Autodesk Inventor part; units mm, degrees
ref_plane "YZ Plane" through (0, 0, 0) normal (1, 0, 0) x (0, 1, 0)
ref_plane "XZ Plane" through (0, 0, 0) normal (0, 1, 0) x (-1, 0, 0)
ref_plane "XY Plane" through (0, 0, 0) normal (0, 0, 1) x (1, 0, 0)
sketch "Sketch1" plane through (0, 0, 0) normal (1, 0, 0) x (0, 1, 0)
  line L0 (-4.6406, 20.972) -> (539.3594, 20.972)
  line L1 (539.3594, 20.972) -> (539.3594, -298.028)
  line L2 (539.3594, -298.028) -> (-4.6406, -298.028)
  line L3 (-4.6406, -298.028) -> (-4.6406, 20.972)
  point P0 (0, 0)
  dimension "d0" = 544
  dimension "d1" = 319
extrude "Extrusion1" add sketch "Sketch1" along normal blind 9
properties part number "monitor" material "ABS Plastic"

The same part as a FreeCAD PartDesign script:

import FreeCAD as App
import Part
import Sketcher
Q = App.Units.Quantity

doc = App.newDocument("Part")
body = doc.addObject("PartDesign::Body", "Body")

# Sketch on YZ plane
sketch1 = body.newObject("Sketcher::SketchObject", "Sketch")
sketch1.AttachmentSupport = (doc.getObject("YZ_Plane"), [""])
sketch1.MapMode = "FlatFace"
sketch1.addGeometry(Part.LineSegment(App.Vector(539, 21, 0), App.Vector(-5, 21, 0)), False)
sketch1.addGeometry(Part.LineSegment(App.Vector(-5, 21, 0), App.Vector(-5, -298, 0)), False)
sketch1.addGeometry(Part.LineSegment(App.Vector(-5, -298, 0), App.Vector(539, -298, 0)), False)
sketch1.addGeometry(Part.LineSegment(App.Vector(539, -298, 0), App.Vector(539, 21, 0)), False)
sketch1.addConstraint(Sketcher.Constraint("Coincident", 0, 2, 1, 1))
sketch1.addConstraint(Sketcher.Constraint("Coincident", 1, 2, 2, 1))
sketch1.addConstraint(Sketcher.Constraint("Coincident", 2, 2, 3, 1))
sketch1.addConstraint(Sketcher.Constraint("Coincident", 3, 2, 0, 1))
sketch1.addConstraint(Sketcher.Constraint("Horizontal", 0))
sketch1.addConstraint(Sketcher.Constraint("Vertical", 1))
sketch1.addConstraint(Sketcher.Constraint("Horizontal", 2))
sketch1.addConstraint(Sketcher.Constraint("Vertical", 3))
sketch1.addConstraint(Sketcher.Constraint("DistanceX", 0, 2, 0, 1, Q("544 mm")))
sketch1.addConstraint(Sketcher.Constraint("DistanceY", 1, 2, 1, 1, Q("319 mm")))
sketch1.addConstraint(Sketcher.Constraint("DistanceY", -1, 1, 0, 2, Q("20.972 mm")))
sketch1.addConstraint(Sketcher.Constraint("DistanceX", 0, 2, -1, 1, Q("4.6406 mm")))
pad1 = body.newObject("PartDesign::Pad", "Pad")
pad1.Profile = sketch1
pad1.Length = 9

doc.recompute()
